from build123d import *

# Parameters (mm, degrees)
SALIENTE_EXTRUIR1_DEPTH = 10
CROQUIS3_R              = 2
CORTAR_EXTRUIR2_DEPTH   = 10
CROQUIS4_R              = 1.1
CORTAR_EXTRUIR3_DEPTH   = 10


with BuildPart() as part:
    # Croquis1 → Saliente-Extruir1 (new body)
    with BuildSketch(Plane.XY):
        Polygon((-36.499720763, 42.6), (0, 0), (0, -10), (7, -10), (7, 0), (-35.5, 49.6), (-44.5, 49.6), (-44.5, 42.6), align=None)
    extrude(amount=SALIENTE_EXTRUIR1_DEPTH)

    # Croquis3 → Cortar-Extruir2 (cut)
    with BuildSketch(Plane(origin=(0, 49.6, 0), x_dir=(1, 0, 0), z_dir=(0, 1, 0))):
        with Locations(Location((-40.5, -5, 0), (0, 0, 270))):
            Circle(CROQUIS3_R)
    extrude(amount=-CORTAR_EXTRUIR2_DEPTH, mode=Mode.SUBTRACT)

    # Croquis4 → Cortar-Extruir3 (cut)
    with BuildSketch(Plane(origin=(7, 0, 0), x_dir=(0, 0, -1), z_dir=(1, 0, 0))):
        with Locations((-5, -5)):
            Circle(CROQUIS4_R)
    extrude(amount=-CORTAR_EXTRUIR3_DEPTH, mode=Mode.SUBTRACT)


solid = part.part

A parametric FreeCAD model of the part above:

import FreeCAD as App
import Part
import Sketcher
Q = App.Units.Quantity


def add_polygon(sketch, points):
    """Adds a closed chain of lines whose ends are joined by coincident constraints."""
    first, n = sketch.GeometryCount, len(points)
    for a, b in zip(points, points[1:] + points[:1]):
        sketch.addGeometry(Part.LineSegment(App.Vector(*a, 0), App.Vector(*b, 0)), False)
    for i in range(n):
        sketch.addConstraint(Sketcher.Constraint("Coincident", first + i, 2, first + (i + 1) % n, 1))

doc = App.newDocument("Part")
body = doc.addObject("PartDesign::Body", "Body")

# Sketch on XY plane
sketch1 = doc.addObject("Sketcher::SketchObject", "Sketch")
body.addObject(sketch1)
sketch1.AttachmentSupport = (doc.XY_Plane, [""])
sketch1.MapMode = "FlatFace"
add_polygon(sketch1, [(-36, 43), (0, 0), (0, -10), (7, -10), (7, 0), (-36, 50), (-44, 50), (-44, 43)])  # lines 0-7
sketch1.addConstraint(Sketcher.Constraint("Vertical", 1))
sketch1.addConstraint(Sketcher.Constraint("Horizontal", 2))
sketch1.addConstraint(Sketcher.Constraint("Vertical", 3))
sketch1.addConstraint(Sketcher.Constraint("Horizontal", 5))
sketch1.addConstraint(Sketcher.Constraint("Vertical", 6))
sketch1.addConstraint(Sketcher.Constraint("Horizontal", 7))
sketch1.addConstraint(Sketcher.Constraint("Coincident", 0, 2, -1, 1))
sketch1.addConstraint(Sketcher.Constraint("PointOnObject", 3, 2, -1))
sketch1.addConstraint(Sketcher.Constraint("Equal", 2, 6))
sketch1.addConstraint(Sketcher.Constraint("DistanceX", 2, 1, 2, 2, 7.0))
sketch1.addConstraint(Sketcher.Constraint("DistanceX", 5, 2, 5, 1, 9.0))
sketch1.addConstraint(Sketcher.Constraint("DistanceY", 1, 2, 1, 1, 10.0))
sketch1.addConstraint(Sketcher.Constraint("DistanceX", 4, 2, -1, 1, 35.5))
sketch1.addConstraint(Sketcher.Constraint("DistanceY", -1, 1, 4, 2, 49.6))
sketch1.addConstraint(Sketcher.Constraint("Angle", 0, Q("-49.41 deg")))
pad1 = doc.addObject("PartDesign::Pad", "Pad")
body.addObject(pad1)
pad1.Profile = sketch1
pad1.Length = 10

# Sketch on XZ plane
sketch2 = doc.addObject("Sketcher::SketchObject", "Sketch001")
body.addObject(sketch2)
sketch2.AttachmentSupport = (doc.XZ_Plane, [""])
sketch2.MapMode = "FlatFace"
sketch2.AttachmentOffset = App.Placement(App.Vector(0, 0, -49.6), App.Rotation())
sketch2.addGeometry(Part.Circle(App.Vector(-40.5, 5, 0), App.Vector(0, 0, 1), 2), False)
sketch2.addConstraint(Sketcher.Constraint("Diameter", 0, 4.0))
sketch2.addConstraint(Sketcher.Constraint("DistanceY", -1, 1, 0, 3, 5.0))
sketch2.addConstraint(Sketcher.Constraint("DistanceX", 0, 3, -1, 1, 40.5))
pocket1 = doc.addObject("PartDesign::Pocket", "Pocket")
body.addObject(pocket1)
pocket1.Profile = sketch2
pocket1.Length = 10
pocket1.Reversed = True

# Sketch on YZ plane
sketch3 = doc.addObject("Sketcher::SketchObject", "Sketch002")
body.addObject(sketch3)
sketch3.AttachmentSupport = (doc.YZ_Plane, [""])
sketch3.MapMode = "FlatFace"
sketch3.AttachmentOffset = App.Placement(App.Vector(0, 0, 7), App.Rotation())
sketch3.addGeometry(Part.Circle(App.Vector(-5, 5, 0), App.Vector(0, 0, 1), 1.1), False)
sketch3.addConstraint(Sketcher.Constraint("Diameter", 0, 2.2))
sketch3.addConstraint(Sketcher.Constraint("DistanceX", 0, 3, -1, 1, 5.0))
sketch3.addConstraint(Sketcher.Constraint("DistanceY", -1, 1, 0, 3, 5.0))
pocket2 = doc.addObject("PartDesign::Pocket", "Pocket001")
body.addObject(pocket2)
pocket2.Profile = sketch3
pocket2.Length = 10

doc.recompute()
